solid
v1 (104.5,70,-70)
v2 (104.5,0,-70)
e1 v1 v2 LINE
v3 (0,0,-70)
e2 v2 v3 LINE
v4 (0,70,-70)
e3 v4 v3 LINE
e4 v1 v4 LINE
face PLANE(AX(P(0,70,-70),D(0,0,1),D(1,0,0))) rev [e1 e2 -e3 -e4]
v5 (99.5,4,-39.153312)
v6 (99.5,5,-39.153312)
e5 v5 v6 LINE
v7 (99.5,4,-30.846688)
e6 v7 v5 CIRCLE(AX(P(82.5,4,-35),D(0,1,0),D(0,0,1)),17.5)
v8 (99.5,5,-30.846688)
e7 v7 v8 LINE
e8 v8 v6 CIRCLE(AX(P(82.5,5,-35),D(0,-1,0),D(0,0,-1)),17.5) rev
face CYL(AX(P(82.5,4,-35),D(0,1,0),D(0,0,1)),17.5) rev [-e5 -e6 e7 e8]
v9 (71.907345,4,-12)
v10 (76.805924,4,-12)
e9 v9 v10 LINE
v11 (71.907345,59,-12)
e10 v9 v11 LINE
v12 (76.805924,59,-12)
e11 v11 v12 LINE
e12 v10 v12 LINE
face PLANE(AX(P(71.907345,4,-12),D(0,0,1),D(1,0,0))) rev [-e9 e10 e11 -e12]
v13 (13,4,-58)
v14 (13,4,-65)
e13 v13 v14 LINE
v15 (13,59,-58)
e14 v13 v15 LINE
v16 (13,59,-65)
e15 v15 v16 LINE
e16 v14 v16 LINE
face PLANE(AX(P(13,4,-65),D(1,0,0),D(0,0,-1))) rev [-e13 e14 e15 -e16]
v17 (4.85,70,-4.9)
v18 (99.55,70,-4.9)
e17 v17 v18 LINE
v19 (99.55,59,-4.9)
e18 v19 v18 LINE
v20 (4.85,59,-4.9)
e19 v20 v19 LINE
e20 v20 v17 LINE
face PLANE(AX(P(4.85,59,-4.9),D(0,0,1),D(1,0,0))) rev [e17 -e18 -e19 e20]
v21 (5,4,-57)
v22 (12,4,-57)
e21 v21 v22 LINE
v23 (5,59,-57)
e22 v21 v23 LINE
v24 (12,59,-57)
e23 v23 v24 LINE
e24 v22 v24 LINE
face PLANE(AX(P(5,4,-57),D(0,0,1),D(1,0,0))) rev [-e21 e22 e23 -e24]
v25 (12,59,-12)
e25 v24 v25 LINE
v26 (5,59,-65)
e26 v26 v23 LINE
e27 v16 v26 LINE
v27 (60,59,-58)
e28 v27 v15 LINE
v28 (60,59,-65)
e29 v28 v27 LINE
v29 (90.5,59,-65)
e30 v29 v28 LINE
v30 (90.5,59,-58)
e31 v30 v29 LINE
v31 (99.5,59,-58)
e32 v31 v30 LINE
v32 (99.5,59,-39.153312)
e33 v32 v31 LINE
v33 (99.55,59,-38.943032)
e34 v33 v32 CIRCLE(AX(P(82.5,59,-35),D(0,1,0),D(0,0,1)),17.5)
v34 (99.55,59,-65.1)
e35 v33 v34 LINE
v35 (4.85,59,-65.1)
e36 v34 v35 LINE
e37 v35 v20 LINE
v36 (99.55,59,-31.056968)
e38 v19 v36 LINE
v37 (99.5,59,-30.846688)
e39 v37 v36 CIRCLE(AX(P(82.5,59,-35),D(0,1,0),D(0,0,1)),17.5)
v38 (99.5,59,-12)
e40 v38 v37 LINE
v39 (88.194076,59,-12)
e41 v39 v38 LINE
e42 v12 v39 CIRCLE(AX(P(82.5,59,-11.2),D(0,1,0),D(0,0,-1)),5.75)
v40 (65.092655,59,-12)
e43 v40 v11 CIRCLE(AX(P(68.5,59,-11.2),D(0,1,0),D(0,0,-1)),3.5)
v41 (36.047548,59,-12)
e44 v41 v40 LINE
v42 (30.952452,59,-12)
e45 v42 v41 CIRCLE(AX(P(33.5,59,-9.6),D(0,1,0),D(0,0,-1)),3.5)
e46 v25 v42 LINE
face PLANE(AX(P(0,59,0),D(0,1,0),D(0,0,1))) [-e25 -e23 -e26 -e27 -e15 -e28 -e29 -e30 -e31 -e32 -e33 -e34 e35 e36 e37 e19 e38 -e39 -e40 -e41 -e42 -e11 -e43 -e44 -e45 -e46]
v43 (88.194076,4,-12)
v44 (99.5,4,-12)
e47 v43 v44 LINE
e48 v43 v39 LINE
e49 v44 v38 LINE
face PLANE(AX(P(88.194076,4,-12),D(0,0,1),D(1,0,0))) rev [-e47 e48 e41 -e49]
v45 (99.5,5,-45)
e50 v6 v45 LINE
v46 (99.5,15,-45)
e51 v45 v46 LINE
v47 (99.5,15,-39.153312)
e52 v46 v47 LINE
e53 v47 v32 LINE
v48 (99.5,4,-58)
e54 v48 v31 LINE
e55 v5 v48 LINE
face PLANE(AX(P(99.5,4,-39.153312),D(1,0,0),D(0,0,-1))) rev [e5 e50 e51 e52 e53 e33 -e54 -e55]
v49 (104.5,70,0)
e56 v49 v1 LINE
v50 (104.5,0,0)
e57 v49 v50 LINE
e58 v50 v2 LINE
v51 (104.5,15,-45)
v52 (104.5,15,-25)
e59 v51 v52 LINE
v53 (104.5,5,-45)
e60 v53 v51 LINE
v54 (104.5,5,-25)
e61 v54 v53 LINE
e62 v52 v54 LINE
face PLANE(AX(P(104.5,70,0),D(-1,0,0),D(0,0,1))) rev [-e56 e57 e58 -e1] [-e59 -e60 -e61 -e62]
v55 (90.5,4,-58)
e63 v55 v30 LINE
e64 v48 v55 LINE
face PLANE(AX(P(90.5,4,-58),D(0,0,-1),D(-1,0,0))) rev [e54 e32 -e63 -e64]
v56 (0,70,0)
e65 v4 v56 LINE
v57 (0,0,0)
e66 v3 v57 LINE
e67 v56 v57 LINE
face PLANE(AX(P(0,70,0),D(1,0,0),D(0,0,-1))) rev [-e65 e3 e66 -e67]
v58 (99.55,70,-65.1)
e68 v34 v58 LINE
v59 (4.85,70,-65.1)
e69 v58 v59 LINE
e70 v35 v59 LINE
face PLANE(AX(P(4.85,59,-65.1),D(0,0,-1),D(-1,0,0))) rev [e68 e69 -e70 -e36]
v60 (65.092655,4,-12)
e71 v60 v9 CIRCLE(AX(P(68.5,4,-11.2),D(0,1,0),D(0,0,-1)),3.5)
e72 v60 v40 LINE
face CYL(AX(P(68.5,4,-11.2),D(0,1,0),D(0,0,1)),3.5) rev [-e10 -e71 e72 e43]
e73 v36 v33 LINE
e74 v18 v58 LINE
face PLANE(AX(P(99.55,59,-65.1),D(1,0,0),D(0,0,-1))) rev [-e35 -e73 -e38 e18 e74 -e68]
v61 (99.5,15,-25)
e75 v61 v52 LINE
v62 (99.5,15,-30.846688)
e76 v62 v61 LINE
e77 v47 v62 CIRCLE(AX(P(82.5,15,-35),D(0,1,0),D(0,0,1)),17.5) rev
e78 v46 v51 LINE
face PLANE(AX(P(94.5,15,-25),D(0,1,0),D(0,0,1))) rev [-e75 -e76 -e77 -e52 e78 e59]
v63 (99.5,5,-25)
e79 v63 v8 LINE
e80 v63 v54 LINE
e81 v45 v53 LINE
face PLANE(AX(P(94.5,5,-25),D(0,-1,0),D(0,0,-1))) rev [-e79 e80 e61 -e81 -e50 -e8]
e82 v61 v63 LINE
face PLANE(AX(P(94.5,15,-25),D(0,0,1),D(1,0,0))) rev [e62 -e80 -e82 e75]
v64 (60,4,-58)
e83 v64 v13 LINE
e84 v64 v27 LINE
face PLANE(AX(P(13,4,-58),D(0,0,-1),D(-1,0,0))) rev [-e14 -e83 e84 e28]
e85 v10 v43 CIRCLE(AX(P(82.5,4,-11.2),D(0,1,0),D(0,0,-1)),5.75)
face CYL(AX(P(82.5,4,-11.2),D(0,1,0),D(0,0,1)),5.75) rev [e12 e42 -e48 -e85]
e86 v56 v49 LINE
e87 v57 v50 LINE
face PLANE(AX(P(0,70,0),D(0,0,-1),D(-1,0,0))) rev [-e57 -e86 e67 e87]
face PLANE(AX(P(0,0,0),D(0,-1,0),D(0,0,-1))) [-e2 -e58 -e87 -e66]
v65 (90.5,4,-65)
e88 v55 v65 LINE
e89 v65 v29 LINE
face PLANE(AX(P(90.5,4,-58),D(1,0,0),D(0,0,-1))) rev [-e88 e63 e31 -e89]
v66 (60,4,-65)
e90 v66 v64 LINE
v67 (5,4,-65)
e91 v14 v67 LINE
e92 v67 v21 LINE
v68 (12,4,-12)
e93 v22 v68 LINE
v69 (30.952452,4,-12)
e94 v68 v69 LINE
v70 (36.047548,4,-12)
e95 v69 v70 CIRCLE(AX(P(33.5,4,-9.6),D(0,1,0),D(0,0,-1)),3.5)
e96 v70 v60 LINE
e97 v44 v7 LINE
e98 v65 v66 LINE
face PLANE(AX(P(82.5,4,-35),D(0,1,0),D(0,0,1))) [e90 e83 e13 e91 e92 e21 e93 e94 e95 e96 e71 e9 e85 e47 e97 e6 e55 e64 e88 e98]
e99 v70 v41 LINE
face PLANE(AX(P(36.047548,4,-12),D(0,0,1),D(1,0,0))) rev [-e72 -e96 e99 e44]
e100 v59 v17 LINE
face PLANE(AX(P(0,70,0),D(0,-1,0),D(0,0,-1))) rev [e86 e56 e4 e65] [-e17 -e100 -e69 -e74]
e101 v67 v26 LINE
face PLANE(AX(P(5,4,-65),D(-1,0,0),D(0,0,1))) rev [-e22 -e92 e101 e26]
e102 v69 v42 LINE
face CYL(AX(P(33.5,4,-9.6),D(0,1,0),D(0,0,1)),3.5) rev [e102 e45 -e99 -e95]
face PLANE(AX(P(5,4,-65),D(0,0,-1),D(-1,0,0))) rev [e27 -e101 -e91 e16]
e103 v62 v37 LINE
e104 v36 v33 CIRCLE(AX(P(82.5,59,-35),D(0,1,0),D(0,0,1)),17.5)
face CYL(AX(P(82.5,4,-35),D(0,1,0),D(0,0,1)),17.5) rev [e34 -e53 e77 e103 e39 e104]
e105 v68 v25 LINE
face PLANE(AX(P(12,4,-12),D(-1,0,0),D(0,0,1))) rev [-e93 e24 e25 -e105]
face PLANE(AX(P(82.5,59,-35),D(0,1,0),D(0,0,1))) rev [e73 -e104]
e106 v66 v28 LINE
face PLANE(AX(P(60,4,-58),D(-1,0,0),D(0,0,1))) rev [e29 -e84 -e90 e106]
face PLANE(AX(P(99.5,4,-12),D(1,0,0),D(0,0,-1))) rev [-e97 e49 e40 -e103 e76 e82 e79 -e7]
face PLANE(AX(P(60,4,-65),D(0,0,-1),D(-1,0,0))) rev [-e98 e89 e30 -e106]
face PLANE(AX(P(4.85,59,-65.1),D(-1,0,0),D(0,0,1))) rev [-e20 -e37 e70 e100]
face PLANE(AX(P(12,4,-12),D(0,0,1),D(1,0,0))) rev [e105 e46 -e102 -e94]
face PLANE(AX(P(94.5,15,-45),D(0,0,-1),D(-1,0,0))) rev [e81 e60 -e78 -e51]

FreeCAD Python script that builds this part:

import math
import FreeCAD as App
import Part
import Sketcher
from FreeCAD import Vector
Q = App.Units.Quantity

doc = App.newDocument("Part")
body = doc.addObject("PartDesign::Body", "Body")

# Sketch on XZ plane
sketch1 = body.newObject("Sketcher::SketchObject", "Sketch")
sketch1.AttachmentSupport = (doc.getObject("XZ_Plane"), [""])
sketch1.MapMode = "FlatFace"
sketch1.addGeometry([
    Part.LineSegment(Vector(0, -70, 0), Vector(0, 0, 0)),
    Part.LineSegment(Vector(0, 0, 0), Vector(104.5, 0, 0)),
    Part.LineSegment(Vector(104.5, 0, 0), Vector(104.5, -70, 0)),
    Part.LineSegment(Vector(104.5, -70, 0), Vector(0, -70, 0)),
], False)
sketch1.addConstraint([
    Sketcher.Constraint("Coincident", 0, 2, 1, 1),
    Sketcher.Constraint("Coincident", 1, 2, 2, 1),
    Sketcher.Constraint("Coincident", 2, 2, 3, 1),
    Sketcher.Constraint("Coincident", 3, 2, 0, 1),
    Sketcher.Constraint("Vertical", 0),
    Sketcher.Constraint("Horizontal", 1),
    Sketcher.Constraint("Vertical", 2),
    Sketcher.Constraint("Horizontal", 3),
    Sketcher.Constraint("Coincident", 0, 2, -1, 1),
    Sketcher.Constraint("DistanceY", 0, 1, 0, 2, Q("70 mm")),
    Sketcher.Constraint("DistanceX", 1, 1, 1, 2, Q("104.5 mm")),
])
pad1 = body.newObject("PartDesign::Pad", "Pad")
pad1.Profile = sketch1
pad1.Length = 70
pad1.Reversed = True

# Sketch on XZ plane
sketch2 = body.newObject("Sketcher::SketchObject", "Sketch001")
sketch2.AttachmentSupport = (doc.getObject("XZ_Plane"), [""])
sketch2.MapMode = "FlatFace"
sketch2.AttachmentOffset = App.Placement(Vector(0, 0, -70), App.Rotation())
sketch2.addGeometry([
    Part.LineSegment(Vector(4.85, -65.1, 0), Vector(4.85, -4.9, 0)),
    Part.LineSegment(Vector(4.85, -4.9, 0), Vector(99.55, -4.9, 0)),
    Part.LineSegment(Vector(99.55, -4.9, 0), Vector(99.55, -65.1, 0)),
    Part.LineSegment(Vector(99.55, -65.1, 0), Vector(4.85, -65.1, 0)),
], False)
sketch2.addConstraint([
    Sketcher.Constraint("Coincident", 0, 2, 1, 1),
    Sketcher.Constraint("Coincident", 1, 2, 2, 1),
    Sketcher.Constraint("Coincident", 2, 2, 3, 1),
    Sketcher.Constraint("Coincident", 3, 2, 0, 1),
    Sketcher.Constraint("Vertical", 0),
    Sketcher.Constraint("Horizontal", 1),
    Sketcher.Constraint("Vertical", 2),
    Sketcher.Constraint("Horizontal", 3),
    Sketcher.Constraint("DistanceX", 1, 1, 1, 2, Q("94.7 mm")),
    Sketcher.Constraint("DistanceY", 0, 1, 0, 2, Q("60.2 mm")),
    Sketcher.Constraint("DistanceY", 0, 2, -1, 1, Q("4.9 mm")),
    Sketcher.Constraint("DistanceX", -1, 1, 0, 2, Q("4.85 mm")),
])
pocket1 = body.newObject("PartDesign::Pocket", "Pocket")
pocket1.Profile = sketch2
pocket1.Length = 11
pocket1.Reversed = True

# Sketch on XZ plane
sketch3 = body.newObject("Sketcher::SketchObject", "Sketch002")
sketch3.AttachmentSupport = (doc.getObject("XZ_Plane"), [""])
sketch3.MapMode = "FlatFace"
sketch3.AttachmentOffset = App.Placement(Vector(0, 0, -59), App.Rotation())
sketch3.addGeometry([
    Part.LineSegment(Vector(99.5, -39.153312, 0), Vector(99.5, -58, 0)),  # 0
    Part.LineSegment(Vector(99.5, -58, 0), Vector(90.5, -58, 0)),  # 1
    Part.LineSegment(Vector(90.5, -58, 0), Vector(90.5, -65, 0)),  # 2
    Part.LineSegment(Vector(90.5, -65, 0), Vector(60, -65, 0)),  # 3
    Part.LineSegment(Vector(60, -65, 0), Vector(60, -58, 0)),  # 4
    Part.LineSegment(Vector(60, -58, 0), Vector(13, -58, 0)),  # 5
    Part.LineSegment(Vector(13, -58, 0), Vector(13, -65, 0)),  # 6
    Part.LineSegment(Vector(13, -65, 0), Vector(5, -65, 0)),  # 7
    Part.LineSegment(Vector(5, -65, 0), Vector(5, -57, 0)),  # 8
    Part.LineSegment(Vector(5, -57, 0), Vector(12, -57, 0)),  # 9
    Part.LineSegment(Vector(12, -57, 0), Vector(12, -12, 0)),  # 10
    Part.LineSegment(Vector(12, -12, 0), Vector(30.952452, -12, 0)),  # 11
    Part.ArcOfCircle(Part.Circle(Vector(33.5, -9.6, 0), Vector(0, 0, 1), 3.5), math.radians(-43.291808), math.radians(223.291808)),  # 12
    Part.LineSegment(Vector(36.047548, -12, 0), Vector(65.092655, -12, 0)),  # 13
    Part.ArcOfCircle(Part.Circle(Vector(68.5, -11.2, 0), Vector(0, 0, 1), 3.5), math.radians(-13.21298), math.radians(193.21298)),  # 14
    Part.LineSegment(Vector(71.907345, -12, 0), Vector(76.805924, -12, 0)),  # 15
    Part.ArcOfCircle(Part.Circle(Vector(82.5, -11.2, 0), Vector(0, 0, 1), 5.75), math.radians(-7.997531), math.radians(187.997531)),  # 16
    Part.LineSegment(Vector(88.194076, -12, 0), Vector(99.5, -12, 0)),  # 17
    Part.LineSegment(Vector(99.5, -12, 0), Vector(99.5, -30.846688, 0)),  # 18
    Part.ArcOfCircle(Part.Circle(Vector(82.5, -35, 0), Vector(0, 0, 1), 17.5), math.radians(-13.729133), math.radians(13.729133)),  # 19
], False)
sketch3.addConstraint([
    Sketcher.Constraint("Coincident", 0, 2, 1, 1),
    Sketcher.Constraint("Coincident", 1, 2, 2, 1),
    Sketcher.Constraint("Coincident", 2, 2, 3, 1),
    Sketcher.Constraint("Coincident", 3, 2, 4, 1),
    Sketcher.Constraint("Coincident", 4, 2, 5, 1),
    Sketcher.Constraint("Coincident", 5, 2, 6, 1),
    Sketcher.Constraint("Coincident", 6, 2, 7, 1),
    Sketcher.Constraint("Coincident", 7, 2, 8, 1),
    Sketcher.Constraint("Coincident", 8, 2, 9, 1),
    Sketcher.Constraint("Coincident", 9, 2, 10, 1),
    Sketcher.Constraint("Coincident", 10, 2, 11, 1),
    Sketcher.Constraint("Coincident", 11, 2, 12, 2),
    Sketcher.Constraint("Coincident", 12, 1, 13, 1),
    Sketcher.Constraint("Coincident", 13, 2, 14, 2),
    Sketcher.Constraint("Coincident", 14, 1, 15, 1),
    Sketcher.Constraint("Coincident", 15, 2, 16, 2),
    Sketcher.Constraint("Coincident", 16, 1, 17, 1),
    Sketcher.Constraint("Coincident", 17, 2, 18, 1),
    Sketcher.Constraint("Coincident", 18, 2, 19, 2),
    Sketcher.Constraint("Coincident", 19, 1, 0, 1),
    Sketcher.Constraint("Vertical", 0),
    Sketcher.Constraint("Horizontal", 1),
    Sketcher.Constraint("Vertical", 2),
    Sketcher.Constraint("Horizontal", 3),
    Sketcher.Constraint("Vertical", 4),
    Sketcher.Constraint("Horizontal", 5),
    Sketcher.Constraint("Vertical", 6),
    Sketcher.Constraint("Horizontal", 7),
    Sketcher.Constraint("Vertical", 8),
    Sketcher.Constraint("Horizontal", 9),
    Sketcher.Constraint("Vertical", 10),
    Sketcher.Constraint("Horizontal", 11),
    Sketcher.Constraint("Horizontal", 13),
    Sketcher.Constraint("Horizontal", 15),
    Sketcher.Constraint("Horizontal", 17),
    Sketcher.Constraint("Vertical", 18),
    Sketcher.Constraint("Equal", 12, 14),
    Sketcher.Constraint("Horizontal", 14, 3, 16, 3),
    Sketcher.Constraint("Horizontal", 1, 2, 4, 2),
    Sketcher.Constraint("Horizontal", 3, 2, 6, 2),
    Sketcher.Constraint("Horizontal", 11, 2, 12, 1),
    Sketcher.Constraint("Horizontal", 13, 2, 14, 1),
    Sketcher.Constraint("Horizontal", 15, 2, 16, 1),
    Sketcher.Constraint("Vertical", 16, 3, 19, 3),
    Sketcher.Constraint("Vertical", 0, 2, 17, 2),
    Sketcher.Constraint("Equal", 9, 2),
    Sketcher.Constraint("Equal", 7, 8),
    Sketcher.Constraint("Equal", 0, 18),
    Sketcher.Constraint("Radius", 12, Q("3.5 mm")),
    Sketcher.Constraint("Radius", 19, Q("17.5 mm")),
    Sketcher.Constraint("DistanceX", 1, 2, 1, 1, Q("9 mm")),
    Sketcher.Constraint("DistanceX", 5, 2, 5, 1, Q("47 mm")),
    Sketcher.Constraint("DistanceX", 7, 2, 7, 1, Q("8 mm")),
    Sketcher.Constraint("DistanceX", 9, 1, 9, 2, Q("7 mm")),
    Sketcher.Constraint("DistanceY", 10, 1, 10, 2, Q("45 mm")),
    Sketcher.Constraint("Radius", 16, Q("5.75 mm")),
    Sketcher.Constraint("DistanceX", 3, 2, 3, 1, Q("30.5 mm")),
    Sketcher.Constraint("DistanceY", 19, 3, -1, 1, Q("35 mm")),
    Sketcher.Constraint("DistanceX", -1, 1, 3, 2, Q("60 mm")),
    Sketcher.Constraint("DistanceX", 12, 3, 14, 3, Q("35 mm")),
    Sketcher.Constraint("DistanceX", 14, 3, 16, 3, Q("14 mm")),
    Sketcher.Constraint("DistanceX", 19, 3, 0, 2, Q("17 mm")),
    Sketcher.Constraint("DistanceY", 12, 3, -1, 1, Q("9.6 mm")),
    Sketcher.Constraint("DistanceY", 14, 3, -1, 1, Q("11.2 mm")),
])
pocket2 = body.newObject("PartDesign::Pocket", "Pocket001")
pocket2.Profile = sketch3
pocket2.Length = 55
pocket2.Reversed = True

# Sketch on YZ plane
sketch4 = body.newObject("Sketcher::SketchObject", "Sketch003")
sketch4.AttachmentSupport = (doc.getObject("YZ_Plane"), [""])
sketch4.MapMode = "FlatFace"
sketch4.AttachmentOffset = App.Placement(Vector(0, 0, 104.5), App.Rotation())
sketch4.addGeometry([
    Part.LineSegment(Vector(15, -25, 0), Vector(5, -25, 0)),
    Part.LineSegment(Vector(5, -25, 0), Vector(5, -45, 0)),
    Part.LineSegment(Vector(5, -45, 0), Vector(15, -45, 0)),
    Part.LineSegment(Vector(15, -45, 0), Vector(15, -25, 0)),
], False)
sketch4.addConstraint([
    Sketcher.Constraint("Coincident", 0, 2, 1, 1),
    Sketcher.Constraint("Coincident", 1, 2, 2, 1),
    Sketcher.Constraint("Coincident", 2, 2, 3, 1),
    Sketcher.Constraint("Coincident", 3, 2, 0, 1),
    Sketcher.Constraint("Horizontal", 0),
    Sketcher.Constraint("Vertical", 1),
    Sketcher.Constraint("Horizontal", 2),
    Sketcher.Constraint("Vertical", 3),
    Sketcher.Constraint("DistanceX", 0, 2, 0, 1, Q("10 mm")),
    Sketcher.Constraint("DistanceY", 1, 2, 1, 1, Q("20 mm")),
    Sketcher.Constraint("DistanceX", -1, 1, 0, 2, Q("5 mm")),
    Sketcher.Constraint("DistanceY", 0, 2, -1, 1, Q("25 mm")),
])
pocket3 = body.newObject("PartDesign::Pocket", "Pocket002")
pocket3.Profile = sketch4
pocket3.Length = 10

doc.recompute()
